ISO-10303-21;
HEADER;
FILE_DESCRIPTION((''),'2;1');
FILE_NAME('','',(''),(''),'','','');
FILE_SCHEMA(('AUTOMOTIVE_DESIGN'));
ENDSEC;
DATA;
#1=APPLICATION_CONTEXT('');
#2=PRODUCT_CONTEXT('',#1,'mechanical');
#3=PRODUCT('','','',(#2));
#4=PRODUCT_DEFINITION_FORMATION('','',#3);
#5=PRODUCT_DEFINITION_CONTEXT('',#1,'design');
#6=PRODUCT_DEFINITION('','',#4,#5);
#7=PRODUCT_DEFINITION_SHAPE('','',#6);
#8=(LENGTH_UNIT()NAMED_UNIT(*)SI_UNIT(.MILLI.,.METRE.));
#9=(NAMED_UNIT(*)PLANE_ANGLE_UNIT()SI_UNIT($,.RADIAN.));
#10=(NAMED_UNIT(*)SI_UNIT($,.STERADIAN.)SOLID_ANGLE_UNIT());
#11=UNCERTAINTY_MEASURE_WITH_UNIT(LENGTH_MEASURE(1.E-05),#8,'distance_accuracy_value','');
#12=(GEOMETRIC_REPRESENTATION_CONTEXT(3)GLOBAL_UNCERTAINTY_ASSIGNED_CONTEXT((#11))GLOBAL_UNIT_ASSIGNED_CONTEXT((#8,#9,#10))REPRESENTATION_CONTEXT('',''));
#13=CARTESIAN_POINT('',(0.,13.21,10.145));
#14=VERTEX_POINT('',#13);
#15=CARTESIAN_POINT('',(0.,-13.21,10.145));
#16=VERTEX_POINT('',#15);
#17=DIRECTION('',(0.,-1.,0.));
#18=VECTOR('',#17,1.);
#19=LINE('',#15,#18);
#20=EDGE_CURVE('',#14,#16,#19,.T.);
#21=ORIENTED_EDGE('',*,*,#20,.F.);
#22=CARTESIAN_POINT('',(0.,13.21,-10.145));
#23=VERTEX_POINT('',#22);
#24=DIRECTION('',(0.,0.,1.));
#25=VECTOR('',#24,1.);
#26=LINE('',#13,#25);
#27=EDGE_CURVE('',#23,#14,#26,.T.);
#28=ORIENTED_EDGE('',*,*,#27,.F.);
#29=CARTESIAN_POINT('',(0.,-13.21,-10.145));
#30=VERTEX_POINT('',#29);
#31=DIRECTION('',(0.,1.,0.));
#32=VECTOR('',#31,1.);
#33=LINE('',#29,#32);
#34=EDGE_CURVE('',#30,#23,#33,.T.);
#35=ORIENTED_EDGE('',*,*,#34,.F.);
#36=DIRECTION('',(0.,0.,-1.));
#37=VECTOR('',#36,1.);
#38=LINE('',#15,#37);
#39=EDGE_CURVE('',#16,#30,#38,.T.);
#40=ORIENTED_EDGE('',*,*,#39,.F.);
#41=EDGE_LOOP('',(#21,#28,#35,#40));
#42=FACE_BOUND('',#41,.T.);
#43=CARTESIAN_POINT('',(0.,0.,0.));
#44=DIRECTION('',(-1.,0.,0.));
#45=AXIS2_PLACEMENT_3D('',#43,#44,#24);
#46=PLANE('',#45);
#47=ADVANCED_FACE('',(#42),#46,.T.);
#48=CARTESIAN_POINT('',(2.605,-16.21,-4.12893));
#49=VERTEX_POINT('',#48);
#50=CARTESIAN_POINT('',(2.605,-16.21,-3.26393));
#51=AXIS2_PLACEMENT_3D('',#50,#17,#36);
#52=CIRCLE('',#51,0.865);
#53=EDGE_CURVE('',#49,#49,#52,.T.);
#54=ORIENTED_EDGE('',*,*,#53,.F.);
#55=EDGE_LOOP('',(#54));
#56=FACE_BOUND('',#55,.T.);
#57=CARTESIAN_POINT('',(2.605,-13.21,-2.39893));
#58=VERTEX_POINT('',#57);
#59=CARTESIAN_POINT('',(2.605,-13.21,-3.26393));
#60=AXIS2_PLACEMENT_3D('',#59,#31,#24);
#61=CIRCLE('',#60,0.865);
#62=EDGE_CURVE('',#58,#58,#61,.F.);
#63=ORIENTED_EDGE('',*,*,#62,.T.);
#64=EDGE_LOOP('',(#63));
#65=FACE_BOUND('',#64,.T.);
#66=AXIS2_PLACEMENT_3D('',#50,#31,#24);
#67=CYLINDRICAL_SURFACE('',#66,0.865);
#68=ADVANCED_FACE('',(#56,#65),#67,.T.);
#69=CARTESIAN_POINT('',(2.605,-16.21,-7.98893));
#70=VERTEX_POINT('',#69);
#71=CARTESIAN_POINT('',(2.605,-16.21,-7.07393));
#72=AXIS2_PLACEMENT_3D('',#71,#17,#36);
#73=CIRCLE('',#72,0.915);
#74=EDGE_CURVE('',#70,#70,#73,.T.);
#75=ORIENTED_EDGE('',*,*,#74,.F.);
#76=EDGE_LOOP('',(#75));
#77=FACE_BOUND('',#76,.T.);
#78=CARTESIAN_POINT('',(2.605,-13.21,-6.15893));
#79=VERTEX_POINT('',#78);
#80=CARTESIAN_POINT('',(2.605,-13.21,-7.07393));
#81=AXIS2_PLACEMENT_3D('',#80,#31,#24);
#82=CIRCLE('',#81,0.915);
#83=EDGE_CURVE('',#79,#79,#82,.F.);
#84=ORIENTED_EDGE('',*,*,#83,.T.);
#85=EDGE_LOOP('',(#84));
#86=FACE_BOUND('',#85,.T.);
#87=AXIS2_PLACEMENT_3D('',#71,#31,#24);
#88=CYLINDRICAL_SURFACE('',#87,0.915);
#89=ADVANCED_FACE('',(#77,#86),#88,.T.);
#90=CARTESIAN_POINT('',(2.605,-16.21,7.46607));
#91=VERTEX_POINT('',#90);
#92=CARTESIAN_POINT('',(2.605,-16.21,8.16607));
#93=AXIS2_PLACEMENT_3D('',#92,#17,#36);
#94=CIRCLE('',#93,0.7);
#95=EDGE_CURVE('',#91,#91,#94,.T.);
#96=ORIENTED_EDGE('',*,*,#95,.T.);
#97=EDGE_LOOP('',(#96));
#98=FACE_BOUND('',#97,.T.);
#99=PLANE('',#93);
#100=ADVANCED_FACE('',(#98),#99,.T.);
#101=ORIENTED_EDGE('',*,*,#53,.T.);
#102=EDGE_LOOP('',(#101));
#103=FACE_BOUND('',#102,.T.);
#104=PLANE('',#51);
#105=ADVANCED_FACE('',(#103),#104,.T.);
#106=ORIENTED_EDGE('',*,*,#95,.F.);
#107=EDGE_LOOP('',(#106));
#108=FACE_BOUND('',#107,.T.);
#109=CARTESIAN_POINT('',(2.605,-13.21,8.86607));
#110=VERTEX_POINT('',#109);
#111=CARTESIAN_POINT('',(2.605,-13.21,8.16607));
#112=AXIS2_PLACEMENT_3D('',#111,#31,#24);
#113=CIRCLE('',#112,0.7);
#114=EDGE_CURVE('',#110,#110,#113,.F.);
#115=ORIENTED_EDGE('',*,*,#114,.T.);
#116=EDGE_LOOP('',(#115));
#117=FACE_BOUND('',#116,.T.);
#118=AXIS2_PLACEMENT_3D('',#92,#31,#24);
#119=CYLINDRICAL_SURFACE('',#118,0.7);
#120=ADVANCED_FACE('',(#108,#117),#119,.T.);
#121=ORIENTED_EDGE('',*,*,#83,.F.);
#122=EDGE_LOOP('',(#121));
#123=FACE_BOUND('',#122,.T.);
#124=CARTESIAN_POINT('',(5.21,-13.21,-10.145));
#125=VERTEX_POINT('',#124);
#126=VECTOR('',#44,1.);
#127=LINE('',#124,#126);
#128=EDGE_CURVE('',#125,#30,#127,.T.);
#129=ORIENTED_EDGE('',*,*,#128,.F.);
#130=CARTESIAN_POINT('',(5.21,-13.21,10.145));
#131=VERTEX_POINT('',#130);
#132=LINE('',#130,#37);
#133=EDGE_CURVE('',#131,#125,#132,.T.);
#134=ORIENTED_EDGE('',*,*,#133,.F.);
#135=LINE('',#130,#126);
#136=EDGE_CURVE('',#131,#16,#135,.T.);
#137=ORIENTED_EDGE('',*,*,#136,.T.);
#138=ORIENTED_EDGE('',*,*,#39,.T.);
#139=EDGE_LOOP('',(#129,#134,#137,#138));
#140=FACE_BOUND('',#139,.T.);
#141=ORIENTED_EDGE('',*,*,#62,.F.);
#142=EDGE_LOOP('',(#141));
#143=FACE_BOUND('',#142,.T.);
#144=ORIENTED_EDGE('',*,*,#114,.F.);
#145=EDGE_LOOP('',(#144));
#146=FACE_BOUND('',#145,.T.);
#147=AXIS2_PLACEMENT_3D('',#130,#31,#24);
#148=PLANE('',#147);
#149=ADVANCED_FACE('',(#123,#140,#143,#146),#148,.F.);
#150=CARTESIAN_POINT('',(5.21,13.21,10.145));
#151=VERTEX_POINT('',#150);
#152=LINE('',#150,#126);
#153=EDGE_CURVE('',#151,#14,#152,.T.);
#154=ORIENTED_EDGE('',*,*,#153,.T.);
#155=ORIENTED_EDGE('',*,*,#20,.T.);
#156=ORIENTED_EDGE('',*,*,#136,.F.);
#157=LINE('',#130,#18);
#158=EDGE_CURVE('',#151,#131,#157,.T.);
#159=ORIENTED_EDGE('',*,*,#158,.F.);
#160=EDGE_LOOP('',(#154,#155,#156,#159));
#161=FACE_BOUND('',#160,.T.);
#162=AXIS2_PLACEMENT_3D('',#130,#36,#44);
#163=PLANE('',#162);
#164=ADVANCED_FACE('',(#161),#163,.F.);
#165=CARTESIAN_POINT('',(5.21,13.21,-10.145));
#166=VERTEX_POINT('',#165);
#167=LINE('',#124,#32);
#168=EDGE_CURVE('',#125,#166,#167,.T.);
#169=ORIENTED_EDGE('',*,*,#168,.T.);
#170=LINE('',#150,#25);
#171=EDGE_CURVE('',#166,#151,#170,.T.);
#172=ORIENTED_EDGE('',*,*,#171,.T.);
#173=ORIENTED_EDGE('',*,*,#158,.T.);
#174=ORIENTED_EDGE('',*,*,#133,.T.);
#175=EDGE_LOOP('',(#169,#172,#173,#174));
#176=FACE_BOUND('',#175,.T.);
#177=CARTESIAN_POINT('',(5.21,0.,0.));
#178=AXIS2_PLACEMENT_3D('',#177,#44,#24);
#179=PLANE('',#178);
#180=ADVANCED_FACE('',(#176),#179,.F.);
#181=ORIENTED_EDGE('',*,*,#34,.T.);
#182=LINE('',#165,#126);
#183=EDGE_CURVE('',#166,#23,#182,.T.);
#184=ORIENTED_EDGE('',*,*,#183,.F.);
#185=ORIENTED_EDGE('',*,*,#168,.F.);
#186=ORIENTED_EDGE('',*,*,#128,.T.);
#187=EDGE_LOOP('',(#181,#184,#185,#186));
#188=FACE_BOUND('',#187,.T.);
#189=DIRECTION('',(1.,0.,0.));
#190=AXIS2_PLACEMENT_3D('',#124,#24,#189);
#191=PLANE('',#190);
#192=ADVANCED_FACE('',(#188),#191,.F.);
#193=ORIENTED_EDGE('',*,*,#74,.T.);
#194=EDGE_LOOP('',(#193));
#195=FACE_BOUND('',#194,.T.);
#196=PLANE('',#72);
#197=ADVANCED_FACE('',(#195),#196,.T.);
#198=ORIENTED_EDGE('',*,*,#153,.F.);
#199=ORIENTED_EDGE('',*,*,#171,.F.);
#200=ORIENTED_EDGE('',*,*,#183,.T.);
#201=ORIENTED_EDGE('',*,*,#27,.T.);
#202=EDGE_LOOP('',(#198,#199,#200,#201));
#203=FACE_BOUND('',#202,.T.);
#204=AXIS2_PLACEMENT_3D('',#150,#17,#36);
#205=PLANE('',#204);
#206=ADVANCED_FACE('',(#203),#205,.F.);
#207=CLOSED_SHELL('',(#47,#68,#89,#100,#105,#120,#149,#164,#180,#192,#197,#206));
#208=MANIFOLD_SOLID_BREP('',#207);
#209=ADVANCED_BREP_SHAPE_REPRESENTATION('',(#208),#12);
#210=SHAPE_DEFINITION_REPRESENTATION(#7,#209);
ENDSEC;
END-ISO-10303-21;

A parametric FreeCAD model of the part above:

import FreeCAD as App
import Part
import Sketcher


def add_polygon(sketch, points):
    """Adds a closed chain of lines whose ends are joined by coincident constraints."""
    first, n = sketch.GeometryCount, len(points)
    for a, b in zip(points, points[1:] + points[:1]):
        sketch.addGeometry(Part.LineSegment(App.Vector(*a, 0), App.Vector(*b, 0)), False)
    for i in range(n):
        sketch.addConstraint(Sketcher.Constraint("Coincident", first + i, 2, first + (i + 1) % n, 1))

doc = App.newDocument("Part")
params = doc.addObject("Spreadsheet::Sheet", "Params")
for row, (alias, value) in enumerate([
    ("sketch1_width", "26.42 mm"),
    ("sketch1_height", "20.29 mm"),
    ("pad1_length", "5.21 mm"),
    ("sketch2_diameter", "1.4 mm"),
    ("sketch2_diameter2", "1.83 mm"),
    ("sketch2_diameter3", "1.73 mm"),
    ("pad2_length", "3 mm"),
], start=1):
    params.set(f"A{row}", alias)
    params.set(f"B{row}", "=" + value)
    params.setAlias(f"B{row}", alias)

body = doc.addObject("PartDesign::Body", "Body")

sketch1 = body.newObject("Sketcher::SketchObject", "Sketch")
sketch1.AttachmentSupport = (doc.getObject("YZ_Plane"), [""])
sketch1.MapMode = "FlatFace"
add_polygon(sketch1, [(13.21, 10.145), (-13.21, 10.145), (-13.21, -10.145), (13.21, -10.145)])
sketch1.addConstraint([
    Sketcher.Constraint("Horizontal", 0),
    Sketcher.Constraint("Vertical", 1),
    Sketcher.Constraint("Horizontal", 2),
    Sketcher.Constraint("Vertical", 3),
    Sketcher.Constraint("Symmetric", 0, 2, 2, 2, -1, 1),
    Sketcher.Constraint("DistanceX", 0, 2, 0, 1, 26.42),
    Sketcher.Constraint("DistanceY", 1, 2, 1, 1, 20.29),
])
sketch1.setExpression("Constraints[9]", "Params.sketch1_width")
sketch1.setExpression("Constraints[10]", "Params.sketch1_height")
pad1 = body.newObject("PartDesign::Pad", "Pad")
pad1.Profile = sketch1
pad1.setExpression("Length", "Params.pad1_length")

sketch2 = body.newObject("Sketcher::SketchObject", "Sketch001")
sketch2.AttachmentSupport = (doc.getObject("XZ_Plane"), [""])
sketch2.MapMode = "FlatFace"
sketch2.AttachmentOffset = App.Placement(App.Vector(0, 0, 13.21), App.Rotation())
sketch2.addGeometry([
    Part.Circle(App.Vector(2.605, -7.07393, 0), App.Vector(0, 0, 1), 0.915),
    Part.Circle(App.Vector(2.605, -3.26393, 0), App.Vector(0, 0, 1), 0.865),
    Part.Circle(App.Vector(2.605, 8.16607, 0), App.Vector(0, 0, 1), 0.7),
], False)
sketch2.addConstraint([
    Sketcher.Constraint("Vertical", 0, 3, 1, 3),
    Sketcher.Constraint("Vertical", 1, 3, 2, 3),
    Sketcher.Constraint("Diameter", 2, 1.4),
    Sketcher.Constraint("Diameter", 0, 1.83),
    Sketcher.Constraint("Diameter", 1, 1.73),
    Sketcher.Constraint("DistanceY", 0, 3, 1, 3, 3.81),
    Sketcher.Constraint("DistanceY", 1, 3, 2, 3, 11.43),
    Sketcher.Constraint("DistanceX", -1, 1, 0, 3, 2.605),
    Sketcher.Constraint("DistanceY", 0, 3, -1, 1, 7.07393),
])
sketch2.setExpression("Constraints[2]", "Params.sketch2_diameter")
sketch2.setExpression("Constraints[3]", "Params.sketch2_diameter2")
sketch2.setExpression("Constraints[4]", "Params.sketch2_diameter3")
pad2 = body.newObject("PartDesign::Pad", "Pad001")
pad2.Profile = sketch2
pad2.setExpression("Length", "Params.pad2_length")

doc.recompute()
